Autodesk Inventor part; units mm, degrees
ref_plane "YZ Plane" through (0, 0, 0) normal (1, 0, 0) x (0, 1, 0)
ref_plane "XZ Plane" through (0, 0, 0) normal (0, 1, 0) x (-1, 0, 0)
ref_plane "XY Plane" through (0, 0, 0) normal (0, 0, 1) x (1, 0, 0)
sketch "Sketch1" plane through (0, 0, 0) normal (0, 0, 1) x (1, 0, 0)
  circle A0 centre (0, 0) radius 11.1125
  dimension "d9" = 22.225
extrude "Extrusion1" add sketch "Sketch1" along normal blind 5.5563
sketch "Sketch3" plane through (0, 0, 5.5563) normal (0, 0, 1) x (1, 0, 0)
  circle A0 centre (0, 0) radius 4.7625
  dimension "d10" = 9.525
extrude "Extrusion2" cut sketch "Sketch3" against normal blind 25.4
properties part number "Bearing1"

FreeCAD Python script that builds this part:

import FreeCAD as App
import Part
import Sketcher

V = App.Vector
Q = App.Units.Quantity

doc = App.newDocument("Part")
params = doc.addObject("Spreadsheet::Sheet", "Params")
for row, (alias, value) in enumerate([
    ("sketch1_diameter", "0.875 in"),
    ("pad1_length", "0.218752 in"),
    ("sketch2_diameter", "0.375 in"),
    ("pocket1_length", "1 in"),
], start=1):
    params.set(f"A{row}", alias)
    params.set(f"B{row}", "=" + value)
    params.setAlias(f"B{row}", alias)

body = doc.addObject("PartDesign::Body", "Body")

# Sketch on XY plane
sketch1 = body.newObject("Sketcher::SketchObject", "Sketch")
sketch1.AttachmentSupport = (doc.getObject("XY_Plane"), [""])
sketch1.MapMode = "FlatFace"
sketch1.addGeometry(Part.Circle(V(0, 0, 0), V(0, 0, 1), 11), False)
sketch1.addConstraint([
    Sketcher.Constraint("Coincident", 0, 3, -1, 1),
    Sketcher.Constraint("Diameter", 0, Q("0.875 in")),
])
sketch1.setExpression("Constraints[1]", "Params.sketch1_diameter")
pad1 = body.newObject("PartDesign::Pad", "Pad")
pad1.Profile = sketch1
pad1.setExpression("Length", "Params.pad1_length")

# Sketch on XY plane
sketch2 = body.newObject("Sketcher::SketchObject", "Sketch001")
sketch2.AttachmentSupport = (doc.getObject("XY_Plane"), [""])
sketch2.MapMode = "FlatFace"
sketch2.AttachmentOffset = App.Placement(V(0, 0, 0.218752 * 25.4), App.Rotation())
sketch2.addGeometry(Part.Circle(V(0, 0, 0), V(0, 0, 1), 4.8), False)
sketch2.addConstraint([
    Sketcher.Constraint("Coincident", 0, 3, -1, 1),
    Sketcher.Constraint("Diameter", 0, Q("0.375 in")),
])
sketch2.setExpression("Constraints[1]", "Params.sketch2_diameter")
pocket1 = body.newObject("PartDesign::Pocket", "Pocket")
pocket1.Profile = sketch2
pocket1.setExpression("Length", "Params.pocket1_length")

doc.recompute()
